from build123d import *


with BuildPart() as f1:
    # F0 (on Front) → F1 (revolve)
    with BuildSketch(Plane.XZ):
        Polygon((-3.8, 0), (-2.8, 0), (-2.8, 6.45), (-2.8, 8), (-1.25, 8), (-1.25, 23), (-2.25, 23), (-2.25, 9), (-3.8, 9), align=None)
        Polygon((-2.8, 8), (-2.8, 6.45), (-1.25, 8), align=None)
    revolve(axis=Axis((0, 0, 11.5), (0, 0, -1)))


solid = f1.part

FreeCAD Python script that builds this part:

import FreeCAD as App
import Part
import Sketcher

V = App.Vector
Q = App.Units.Quantity

doc = App.newDocument("Part")
body = doc.addObject("PartDesign::Body", "Body")

sketch1 = body.newObject("Sketcher::SketchObject", "Sketch")
sketch1.AttachmentSupport = (doc.getObject("XZ_Plane"), [""])
sketch1.MapMode = "FlatFace"
sketch1.addGeometry([
    Part.LineSegment(V(-3.8, 0, 0), V(-2.8, 0, 0)),
    Part.LineSegment(V(-2.8, 0, 0), V(-2.8, 6.45, 0)),
    Part.LineSegment(V(-2.8, 6.45, 0), V(-1.25, 8, 0)),
    Part.LineSegment(V(-1.25, 8, 0), V(-1.25, 23, 0)),
    Part.LineSegment(V(-1.25, 23, 0), V(-2.25, 23, 0)),
    Part.LineSegment(V(-2.25, 23, 0), V(-2.25, 9, 0)),
    Part.LineSegment(V(-2.25, 9, 0), V(-3.8, 9, 0)),
    Part.LineSegment(V(-3.8, 9, 0), V(-3.8, 0, 0)),
], False)
sketch1.addConstraint([
    Sketcher.Constraint("Coincident", 0, 2, 1, 1),
    Sketcher.Constraint("Coincident", 1, 2, 2, 1),
    Sketcher.Constraint("Coincident", 2, 2, 3, 1),
    Sketcher.Constraint("Coincident", 3, 2, 4, 1),
    Sketcher.Constraint("Coincident", 4, 2, 5, 1),
    Sketcher.Constraint("Coincident", 5, 2, 6, 1),
    Sketcher.Constraint("Coincident", 6, 2, 7, 1),
    Sketcher.Constraint("Coincident", 7, 2, 0, 1),
    Sketcher.Constraint("Horizontal", 0),
    Sketcher.Constraint("Vertical", 1),
    Sketcher.Constraint("Vertical", 3),
    Sketcher.Constraint("Horizontal", 4),
    Sketcher.Constraint("Vertical", 5),
    Sketcher.Constraint("Horizontal", 6),
    Sketcher.Constraint("Vertical", 7),
    Sketcher.Constraint("PointOnObject", 0, 2, -1),
    Sketcher.Constraint("Equal", 0, 4),
    Sketcher.Constraint("DistanceX", 0, 1, 0, 2, Q("1 mm")),
    Sketcher.Constraint("DistanceY", 3, 1, 3, 2, Q("15 mm")),
    Sketcher.Constraint("DistanceY", 5, 2, 5, 1, Q("14 mm")),
    Sketcher.Constraint("DistanceY", 7, 2, 7, 1, Q("9 mm")),
    Sketcher.Constraint("Angle", 2, Q("45 deg")),
    Sketcher.Constraint("DistanceX", 6, 2, 6, 1, Q("1.55 mm")),
    Sketcher.Constraint("DistanceX", 0, 2, -1, 1, Q("2.8 mm")),
])
revolution = body.newObject("PartDesign::Revolution", "Revolution")
revolution.Profile = sketch1
revolution.ReferenceAxis = (sketch1, ["V_Axis"])
revolution.Angle = 360

doc.recompute()
